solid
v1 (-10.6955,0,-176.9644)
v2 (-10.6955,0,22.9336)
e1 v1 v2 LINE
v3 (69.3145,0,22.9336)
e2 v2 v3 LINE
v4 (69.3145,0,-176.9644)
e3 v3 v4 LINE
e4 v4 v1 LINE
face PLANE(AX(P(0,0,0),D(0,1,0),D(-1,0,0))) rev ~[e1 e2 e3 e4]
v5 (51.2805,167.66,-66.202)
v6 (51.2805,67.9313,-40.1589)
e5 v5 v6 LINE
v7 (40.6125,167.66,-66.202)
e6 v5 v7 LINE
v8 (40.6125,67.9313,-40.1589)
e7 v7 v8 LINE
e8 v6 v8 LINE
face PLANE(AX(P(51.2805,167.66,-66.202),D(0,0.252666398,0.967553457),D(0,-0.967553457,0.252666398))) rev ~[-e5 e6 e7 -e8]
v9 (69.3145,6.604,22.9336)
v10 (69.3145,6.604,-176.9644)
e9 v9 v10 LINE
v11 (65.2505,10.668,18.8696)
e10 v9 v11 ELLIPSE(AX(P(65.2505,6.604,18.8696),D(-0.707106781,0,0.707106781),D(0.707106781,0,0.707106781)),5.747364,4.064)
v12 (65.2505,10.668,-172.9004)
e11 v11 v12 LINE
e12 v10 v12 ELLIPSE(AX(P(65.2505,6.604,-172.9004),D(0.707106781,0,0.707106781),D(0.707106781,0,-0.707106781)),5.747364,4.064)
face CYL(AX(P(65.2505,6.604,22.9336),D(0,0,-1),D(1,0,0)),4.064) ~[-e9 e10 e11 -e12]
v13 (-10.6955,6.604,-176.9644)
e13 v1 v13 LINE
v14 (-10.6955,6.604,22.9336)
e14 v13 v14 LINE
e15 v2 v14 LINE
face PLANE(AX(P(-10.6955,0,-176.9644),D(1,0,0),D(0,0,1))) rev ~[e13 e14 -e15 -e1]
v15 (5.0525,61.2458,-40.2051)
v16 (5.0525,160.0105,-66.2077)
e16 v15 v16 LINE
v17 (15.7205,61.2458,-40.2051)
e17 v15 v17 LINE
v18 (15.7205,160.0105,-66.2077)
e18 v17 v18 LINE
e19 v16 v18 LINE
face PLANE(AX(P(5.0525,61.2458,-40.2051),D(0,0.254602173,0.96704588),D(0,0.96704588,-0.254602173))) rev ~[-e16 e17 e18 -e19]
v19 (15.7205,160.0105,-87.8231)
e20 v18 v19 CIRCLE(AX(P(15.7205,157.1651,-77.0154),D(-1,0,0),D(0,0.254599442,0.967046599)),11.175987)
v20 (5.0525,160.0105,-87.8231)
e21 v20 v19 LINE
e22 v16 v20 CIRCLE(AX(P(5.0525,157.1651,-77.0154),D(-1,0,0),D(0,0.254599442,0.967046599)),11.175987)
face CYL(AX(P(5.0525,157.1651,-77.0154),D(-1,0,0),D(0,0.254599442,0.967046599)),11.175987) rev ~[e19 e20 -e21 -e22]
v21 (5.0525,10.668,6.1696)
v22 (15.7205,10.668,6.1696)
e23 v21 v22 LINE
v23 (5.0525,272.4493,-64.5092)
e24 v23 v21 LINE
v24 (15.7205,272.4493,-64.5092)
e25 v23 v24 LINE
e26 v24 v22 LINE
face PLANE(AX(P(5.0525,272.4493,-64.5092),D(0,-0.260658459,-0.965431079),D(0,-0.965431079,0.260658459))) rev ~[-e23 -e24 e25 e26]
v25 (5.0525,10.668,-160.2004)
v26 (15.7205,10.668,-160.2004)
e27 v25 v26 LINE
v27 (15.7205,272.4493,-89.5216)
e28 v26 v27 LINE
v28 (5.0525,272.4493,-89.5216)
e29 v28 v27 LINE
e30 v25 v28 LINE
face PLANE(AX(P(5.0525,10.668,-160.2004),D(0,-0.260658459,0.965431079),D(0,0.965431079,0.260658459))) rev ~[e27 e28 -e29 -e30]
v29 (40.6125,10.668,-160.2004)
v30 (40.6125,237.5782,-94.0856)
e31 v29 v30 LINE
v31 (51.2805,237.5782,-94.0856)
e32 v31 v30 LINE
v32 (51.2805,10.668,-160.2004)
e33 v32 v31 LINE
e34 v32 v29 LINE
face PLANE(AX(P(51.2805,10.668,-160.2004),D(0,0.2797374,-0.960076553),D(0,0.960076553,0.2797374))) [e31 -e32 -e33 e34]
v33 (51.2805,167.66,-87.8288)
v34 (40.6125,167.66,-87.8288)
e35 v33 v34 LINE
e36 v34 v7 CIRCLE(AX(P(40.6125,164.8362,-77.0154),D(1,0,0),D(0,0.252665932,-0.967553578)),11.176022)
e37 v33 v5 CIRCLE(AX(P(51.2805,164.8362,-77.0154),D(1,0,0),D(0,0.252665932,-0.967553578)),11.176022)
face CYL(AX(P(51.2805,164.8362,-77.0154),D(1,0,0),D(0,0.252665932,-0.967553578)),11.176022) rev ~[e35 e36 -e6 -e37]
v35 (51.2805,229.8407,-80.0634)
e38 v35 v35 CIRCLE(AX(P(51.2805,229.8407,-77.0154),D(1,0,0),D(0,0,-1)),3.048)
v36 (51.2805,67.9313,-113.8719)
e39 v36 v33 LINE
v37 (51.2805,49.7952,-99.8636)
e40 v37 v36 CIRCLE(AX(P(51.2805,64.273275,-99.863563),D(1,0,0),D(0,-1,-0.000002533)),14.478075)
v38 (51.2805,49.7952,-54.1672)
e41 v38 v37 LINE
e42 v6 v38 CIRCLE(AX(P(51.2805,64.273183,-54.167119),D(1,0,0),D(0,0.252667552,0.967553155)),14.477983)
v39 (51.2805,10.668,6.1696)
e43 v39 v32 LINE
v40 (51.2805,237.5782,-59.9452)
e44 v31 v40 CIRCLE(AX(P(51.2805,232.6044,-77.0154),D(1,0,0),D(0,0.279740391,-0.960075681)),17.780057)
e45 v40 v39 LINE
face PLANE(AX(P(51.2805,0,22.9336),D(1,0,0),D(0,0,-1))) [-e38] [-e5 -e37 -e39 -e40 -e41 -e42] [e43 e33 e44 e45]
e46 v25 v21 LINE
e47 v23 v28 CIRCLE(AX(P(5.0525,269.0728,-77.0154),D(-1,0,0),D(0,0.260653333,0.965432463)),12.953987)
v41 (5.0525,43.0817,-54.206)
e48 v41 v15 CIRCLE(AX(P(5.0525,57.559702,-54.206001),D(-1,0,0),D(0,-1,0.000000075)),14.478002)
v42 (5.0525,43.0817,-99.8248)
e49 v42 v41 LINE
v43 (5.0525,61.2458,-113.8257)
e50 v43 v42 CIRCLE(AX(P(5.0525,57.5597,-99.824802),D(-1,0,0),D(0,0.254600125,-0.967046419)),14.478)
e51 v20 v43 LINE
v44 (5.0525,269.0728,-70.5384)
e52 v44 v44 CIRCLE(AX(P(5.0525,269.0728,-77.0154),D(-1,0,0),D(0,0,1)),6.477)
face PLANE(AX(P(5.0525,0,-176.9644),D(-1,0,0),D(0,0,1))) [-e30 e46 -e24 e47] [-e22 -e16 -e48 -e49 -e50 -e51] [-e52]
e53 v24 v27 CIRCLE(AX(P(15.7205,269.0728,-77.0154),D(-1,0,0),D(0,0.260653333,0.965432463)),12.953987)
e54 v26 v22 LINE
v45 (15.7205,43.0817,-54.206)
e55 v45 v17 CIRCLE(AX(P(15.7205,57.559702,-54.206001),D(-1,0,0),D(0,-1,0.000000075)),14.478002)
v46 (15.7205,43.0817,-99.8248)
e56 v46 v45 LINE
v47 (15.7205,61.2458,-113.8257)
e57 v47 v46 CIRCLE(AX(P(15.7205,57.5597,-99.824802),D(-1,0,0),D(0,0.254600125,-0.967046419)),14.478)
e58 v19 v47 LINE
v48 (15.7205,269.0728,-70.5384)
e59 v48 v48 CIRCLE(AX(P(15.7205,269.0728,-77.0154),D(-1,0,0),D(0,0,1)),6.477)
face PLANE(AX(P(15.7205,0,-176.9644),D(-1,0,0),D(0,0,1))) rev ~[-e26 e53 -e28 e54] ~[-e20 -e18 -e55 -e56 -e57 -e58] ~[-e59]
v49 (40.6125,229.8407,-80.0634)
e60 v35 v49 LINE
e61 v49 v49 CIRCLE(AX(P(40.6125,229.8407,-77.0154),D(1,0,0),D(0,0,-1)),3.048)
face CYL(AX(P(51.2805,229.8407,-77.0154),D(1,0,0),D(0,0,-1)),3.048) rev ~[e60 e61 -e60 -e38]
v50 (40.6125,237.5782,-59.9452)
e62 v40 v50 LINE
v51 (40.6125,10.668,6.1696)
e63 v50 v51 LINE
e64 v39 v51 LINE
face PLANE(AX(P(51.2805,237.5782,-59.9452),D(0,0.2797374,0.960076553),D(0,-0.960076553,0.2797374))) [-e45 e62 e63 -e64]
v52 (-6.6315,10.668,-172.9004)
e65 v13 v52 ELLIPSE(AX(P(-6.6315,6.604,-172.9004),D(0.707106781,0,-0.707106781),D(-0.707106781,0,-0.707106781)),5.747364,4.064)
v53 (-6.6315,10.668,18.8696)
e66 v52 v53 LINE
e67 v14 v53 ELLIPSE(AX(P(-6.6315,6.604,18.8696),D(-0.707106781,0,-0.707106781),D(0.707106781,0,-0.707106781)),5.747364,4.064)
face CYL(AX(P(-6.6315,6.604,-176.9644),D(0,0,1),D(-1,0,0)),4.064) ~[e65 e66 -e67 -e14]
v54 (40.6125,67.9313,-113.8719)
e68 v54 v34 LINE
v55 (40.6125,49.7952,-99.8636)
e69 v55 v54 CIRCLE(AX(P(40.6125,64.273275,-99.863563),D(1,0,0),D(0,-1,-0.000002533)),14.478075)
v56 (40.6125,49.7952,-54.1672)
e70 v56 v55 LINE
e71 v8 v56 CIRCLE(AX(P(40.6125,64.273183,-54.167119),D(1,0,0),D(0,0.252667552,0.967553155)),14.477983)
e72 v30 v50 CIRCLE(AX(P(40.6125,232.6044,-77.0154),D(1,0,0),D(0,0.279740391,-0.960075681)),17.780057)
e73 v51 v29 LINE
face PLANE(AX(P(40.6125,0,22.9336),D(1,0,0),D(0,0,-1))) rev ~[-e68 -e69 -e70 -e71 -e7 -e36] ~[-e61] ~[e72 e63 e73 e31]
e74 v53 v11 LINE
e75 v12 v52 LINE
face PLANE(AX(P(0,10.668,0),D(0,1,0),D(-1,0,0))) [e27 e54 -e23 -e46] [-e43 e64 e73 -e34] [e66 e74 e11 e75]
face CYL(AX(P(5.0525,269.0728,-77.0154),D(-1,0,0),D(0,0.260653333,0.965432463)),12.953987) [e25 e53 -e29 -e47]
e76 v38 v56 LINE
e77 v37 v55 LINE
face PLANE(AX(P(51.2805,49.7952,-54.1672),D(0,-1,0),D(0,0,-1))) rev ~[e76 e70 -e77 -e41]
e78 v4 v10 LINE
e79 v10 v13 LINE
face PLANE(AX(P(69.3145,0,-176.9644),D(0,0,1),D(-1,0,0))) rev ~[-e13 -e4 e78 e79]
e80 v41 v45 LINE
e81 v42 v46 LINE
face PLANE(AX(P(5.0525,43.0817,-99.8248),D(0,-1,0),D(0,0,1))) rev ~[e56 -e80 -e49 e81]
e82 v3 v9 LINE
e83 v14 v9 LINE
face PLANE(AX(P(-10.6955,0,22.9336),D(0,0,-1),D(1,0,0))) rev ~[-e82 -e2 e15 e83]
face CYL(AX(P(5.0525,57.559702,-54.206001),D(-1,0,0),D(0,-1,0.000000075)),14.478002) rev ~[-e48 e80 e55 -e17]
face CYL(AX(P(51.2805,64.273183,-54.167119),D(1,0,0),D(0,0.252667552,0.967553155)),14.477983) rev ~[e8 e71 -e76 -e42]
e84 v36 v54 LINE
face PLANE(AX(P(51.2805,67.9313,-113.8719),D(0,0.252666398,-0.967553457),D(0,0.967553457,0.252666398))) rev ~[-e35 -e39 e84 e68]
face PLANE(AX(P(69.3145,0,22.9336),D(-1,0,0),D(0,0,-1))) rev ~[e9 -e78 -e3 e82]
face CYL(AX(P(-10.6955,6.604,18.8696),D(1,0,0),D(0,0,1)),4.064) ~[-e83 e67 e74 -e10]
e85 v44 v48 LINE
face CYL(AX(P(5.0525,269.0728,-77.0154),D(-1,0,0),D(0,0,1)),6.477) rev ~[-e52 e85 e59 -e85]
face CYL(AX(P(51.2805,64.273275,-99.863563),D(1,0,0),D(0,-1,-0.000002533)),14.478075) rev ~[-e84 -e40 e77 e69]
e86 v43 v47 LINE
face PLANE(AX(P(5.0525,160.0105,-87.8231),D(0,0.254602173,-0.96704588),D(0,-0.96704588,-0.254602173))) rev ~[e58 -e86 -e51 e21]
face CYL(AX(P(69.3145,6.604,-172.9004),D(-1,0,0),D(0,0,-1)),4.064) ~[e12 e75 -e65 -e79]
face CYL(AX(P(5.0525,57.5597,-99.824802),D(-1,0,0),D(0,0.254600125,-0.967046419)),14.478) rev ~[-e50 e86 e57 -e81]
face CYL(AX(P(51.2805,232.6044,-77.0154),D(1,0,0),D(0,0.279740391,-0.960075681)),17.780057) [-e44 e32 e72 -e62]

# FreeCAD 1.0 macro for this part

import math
import FreeCAD as App
import Part
import Sketcher
from FreeCAD import Vector
Q = App.Units.Quantity


def edges_at(feature, points):
    """Names of the edges that pass closest to the given points."""
    edges = feature.Shape.Edges
    near = lambda p: min(range(len(edges)), key=lambda i: edges[i].distToShape(Part.Vertex(*p))[0])
    return sorted({f"Edge{near(p) + 1}" for p in points})


def add_polygon(sketch, points):
    """Adds a closed chain of lines whose ends are joined by coincident constraints."""
    first, n = sketch.GeometryCount, len(points)
    for a, b in zip(points, points[1:] + points[:1]):
        sketch.addGeometry(Part.LineSegment(App.Vector(*a, 0), App.Vector(*b, 0)), False)
    for i in range(n):
        sketch.addConstraint(Sketcher.Constraint("Coincident", first + i, 2, first + (i + 1) % n, 1))

doc = App.newDocument("Part")
params = doc.addObject("Spreadsheet::Sheet", "Params")
for row, (alias, value) in enumerate([
    ("sketch1_width", "3.15 in"),
    ("sketch1_height", "7.87 in"),
    ("pad1_length", "0.42 in"),
    ("fillet_radius", "0.16 in"),
    ("sketch2_radius", "0.7 in"),
    ("sketch2_radius2", "0.57 in"),
    ("sketch2_radius3", "0.44 in"),
    ("sketch2_radius4", "0.57 in"),
    ("sketch2_height", "6.55 in"),
    ("pad2_length", "0.42 in"),
    ("sketch3_diameter", "0.24 in"),
    ("sketch4_radius", "0.51 in"),
    ("sketch4_radius2", "0.57 in"),
    ("sketch4_radius3", "0.44 in"),
    ("sketch4_height", "6.55 in"),
    ("pad3_length", "0.42 in"),
    ("sketch5_diameter", "0.51 in"),
], start=1):
    params.set(f"A{row}", alias)
    params.set(f"B{row}", "=" + value)
    params.setAlias(f"B{row}", alias)

body = doc.addObject("PartDesign::Body", "Body")

# Sketch on XZ plane
sketch1 = body.newObject("Sketcher::SketchObject", "Sketch")
sketch1.AttachmentSupport = (doc.getObject("XZ_Plane"), [""])
sketch1.MapMode = "FlatFace"
add_polygon(sketch1, [(-11, -177), (-11, 23), (69, 23), (69, -177)])  # lines 0-3
sketch1.addConstraint([
    Sketcher.Constraint("Vertical", 0),
    Sketcher.Constraint("Horizontal", 1),
    Sketcher.Constraint("Vertical", 2),
    Sketcher.Constraint("Horizontal", 3),
    Sketcher.Constraint("DistanceX", 1, 1, 1, 2, Q("3.15 in")),
    Sketcher.Constraint("DistanceY", 0, 1, 0, 2, Q("7.87 in")),
    Sketcher.Constraint("DistanceY", -1, 1, 0, 2, Q("0.9029 in")),
    Sketcher.Constraint("DistanceX", 0, 2, -1, 1, 10.6955),
])
sketch1.setExpression("Constraints[8]", "Params.sketch1_width")
sketch1.setExpression("Constraints[9]", "Params.sketch1_height")
pad1 = body.newObject("PartDesign::Pad", "Pad")
pad1.Profile = sketch1
pad1.setExpression("Length", "Params.pad1_length")
pad1.Reversed = True
doc.recompute()

fillet = body.newObject("PartDesign::Fillet", "Fillet")
fillet.Base = (pad1, edges_at(pad1, [
    (29.309, 10.668, 22.934),
    (69.314, 10.668, -77.015),
    (29.309, 10.668, -176.964),
    (-10.695, 10.668, -77.015),
]))
fillet.setExpression("Radius", "Params.fillet_radius")

# Sketch on YZ plane
sketch2 = body.newObject("Sketcher::SketchObject", "Sketch001")
sketch2.AttachmentSupport = (doc.getObject("YZ_Plane"), [""])
sketch2.MapMode = "FlatFace"
sketch2.AttachmentOffset = App.Placement(Vector(0, 0, 51.2805), App.Rotation())
sketch2.addGeometry([
    Part.ArcOfCircle(Part.Circle(Vector(232.6044, -77.0154, 0), Vector(0, 0, 1), 17.780057), math.radians(-73.755289), math.radians(73.755289)),  # 0
    Part.LineSegment(Vector(237.5782, -59.9452, 0), Vector(10.668, 6.1696, 0)),  # 1
    Part.LineSegment(Vector(10.668, 6.1696, 0), Vector(10.668, -160.2004, 0)),  # 2
    Part.LineSegment(Vector(10.668, -160.2004, 0), Vector(237.5782, -94.0856, 0)),  # 3
    Part.LineSegment(Vector(49.7952, -99.8636, 0), Vector(49.7952, -54.1672, 0)),  # 4
    Part.ArcOfCircle(Part.Circle(Vector(64.2732, -54.1672, 0), Vector(0, 0, 1), 14.478058), math.radians(75.364725), math.radians(180)),  # 5
    Part.LineSegment(Vector(67.9313, -40.1589, 0), Vector(167.66, -66.202, 0)),  # 6
    Part.ArcOfCircle(Part.Circle(Vector(164.8362, -77.0154, 0), Vector(0, 0, 1), 11.176022), math.radians(-75.364675), math.radians(75.364675)),  # 7
    Part.LineSegment(Vector(167.66, -87.8288, 0), Vector(67.9313, -113.8719, 0)),  # 8
    Part.ArcOfCircle(Part.Circle(Vector(64.2732, -99.8636, 0), Vector(0, 0, 1), 14.478), math.radians(180), math.radians(284.635275)),  # 9
], False)
sketch2.addConstraint([
    Sketcher.Constraint("Coincident", 0, 2, 1, 1),
    Sketcher.Constraint("Coincident", 1, 2, 2, 1),
    Sketcher.Constraint("Coincident", 2, 2, 3, 1),
    Sketcher.Constraint("Coincident", 3, 2, 0, 1),
    Sketcher.Constraint("Coincident", 4, 2, 5, 2),
    Sketcher.Constraint("Coincident", 5, 1, 6, 1),
    Sketcher.Constraint("Coincident", 6, 2, 7, 2),
    Sketcher.Constraint("Coincident", 7, 1, 8, 1),
    Sketcher.Constraint("Coincident", 8, 2, 9, 2),
    Sketcher.Constraint("Coincident", 9, 1, 4, 1),
    Sketcher.Constraint("Vertical", 2),
    Sketcher.Constraint("Vertical", 4),
    Sketcher.Constraint("Radius", 0, Q("0.7 in")),
    Sketcher.Constraint("Radius", 5, Q("0.57 in")),
    Sketcher.Constraint("Radius", 7, Q("0.44 in")),
    Sketcher.Constraint("Radius", 9, Q("0.57 in")),
    Sketcher.Constraint("DistanceY", 2, 2, 2, 1, Q("6.55 in")),
    Sketcher.Constraint("DistanceX", -1, 1, 1, 2, Q("0.42 in")),
    Sketcher.Constraint("Distance", 6, Q("4.058 in")),
    Sketcher.Constraint("Distance", 8, Q("4.058 in")),
    Sketcher.Constraint("DistanceY", 7, 3, 1, 2, Q("3.275 in")),
    Sketcher.Constraint("DistanceY", 0, 3, 1, 2, Q("3.275 in")),
    Sketcher.Constraint("DistanceY", 4, 1, 4, 2, 45.6964),
    Sketcher.Constraint("DistanceY", 0, 3, -1, 1, Q("3.0321 in")),
    Sketcher.Constraint("DistanceY", 9, 3, 0, 2, Q("1.5716 in")),
    Sketcher.Constraint("DistanceY", 3, 2, 0, 2, Q("1.3441 in")),
    Sketcher.Constraint("DistanceY", 3, 2, 5, 3, Q("1.5716 in")),
    Sketcher.Constraint("DistanceY", 5, 3, 5, 1, Q("0.5515 in")),
    Sketcher.Constraint("DistanceY", 4, 2, 5, 1, Q("0.5515 in")),
    Sketcher.Constraint("DistanceY", 8, 2, 9, 3, Q("0.5515 in")),
    Sketcher.Constraint("Distance", 1, 236.346),
    Sketcher.Constraint("Distance", 3, 236.346),
    Sketcher.Constraint("DistanceX", -1, 1, 5, 3, 64.2732),
    Sketcher.Constraint("DistanceX", -1, 1, 7, 3, 164.8362),
])
sketch2.setExpression("Constraints[12]", "Params.sketch2_radius")
sketch2.setExpression("Constraints[13]", "Params.sketch2_radius2")
sketch2.setExpression("Constraints[14]", "Params.sketch2_radius3")
sketch2.setExpression("Constraints[15]", "Params.sketch2_radius4")
sketch2.setExpression("Constraints[16]", "Params.sketch2_height")
pad2 = body.newObject("PartDesign::Pad", "Pad001")
pad2.Profile = sketch2
pad2.setExpression("Length", "Params.pad2_length")
pad2.Reversed = True

# Sketch on YZ plane
sketch3 = body.newObject("Sketcher::SketchObject", "Sketch002")
sketch3.AttachmentSupport = (doc.getObject("YZ_Plane"), [""])
sketch3.MapMode = "FlatFace"
sketch3.AttachmentOffset = App.Placement(Vector(0, 0, 51.2805), App.Rotation())
sketch3.addGeometry(Part.Circle(Vector(229.8, -77, 0), Vector(0, 0, 1), 3), False)
sketch3.addConstraint([
    Sketcher.Constraint("Diameter", 0, Q("0.24 in")),
    Sketcher.Constraint("DistanceY", 0, 3, -1, 1, Q("3.0321 in")),
    Sketcher.Constraint("DistanceX", -1, 1, 0, 3, 229.8407),
])
sketch3.setExpression("Constraints[0]", "Params.sketch3_diameter")
pocket1 = body.newObject("PartDesign::Pocket", "Pocket")
pocket1.Profile = sketch3
pocket1.Type = "UpToFirst"

# Sketch on YZ plane
sketch4 = body.newObject("Sketcher::SketchObject", "Sketch003")
sketch4.AttachmentSupport = (doc.getObject("YZ_Plane"), [""])
sketch4.MapMode = "FlatFace"
sketch4.AttachmentOffset = App.Placement(Vector(0, 0, 5.0525), App.Rotation())
sketch4.addGeometry([
    Part.LineSegment(Vector(272, -90, 0), Vector(11, -160, 0)),  # 0
    Part.LineSegment(Vector(11, -160, 0), Vector(11, 6, 0)),  # 1
    Part.LineSegment(Vector(11, 6, 0), Vector(272, -65, 0)),  # 2
    Part.ArcOfCircle(Part.Circle(Vector(269, -77, 0), Vector(0, 0, 1), 13), math.radians(-75), math.radians(75)),  # 3
    Part.LineSegment(Vector(43, -54, 0), Vector(43, -100, 0)),  # 4
    Part.ArcOfCircle(Part.Circle(Vector(58, -100, 0), Vector(0, 0, 1), 14), math.radians(180), math.radians(285)),  # 5
    Part.LineSegment(Vector(61, -114, 0), Vector(160, -88, 0)),  # 6
    Part.ArcOfCircle(Part.Circle(Vector(157, -77, 0), Vector(0, 0, 1), 11), math.radians(-75), math.radians(75)),  # 7
    Part.LineSegment(Vector(160, -66, 0), Vector(61, -40, 0)),  # 8
    Part.ArcOfCircle(Part.Circle(Vector(58, -54, 0), Vector(0, 0, 1), 14), math.radians(75), math.radians(180)),  # 9
], False)
sketch4.addConstraint([
    Sketcher.Constraint("Coincident", 0, 2, 1, 1),
    Sketcher.Constraint("Coincident", 1, 2, 2, 1),
    Sketcher.Constraint("Tangent", 2, 2, 3, 2),
    Sketcher.Constraint("Tangent", 3, 1, 0, 1),
    Sketcher.Constraint("Tangent", 4, 2, 5, 1),
    Sketcher.Constraint("Tangent", 5, 2, 6, 1),
    Sketcher.Constraint("Tangent", 6, 2, 7, 1),
    Sketcher.Constraint("Tangent", 7, 2, 8, 1),
    Sketcher.Constraint("Tangent", 8, 2, 9, 1),
    Sketcher.Constraint("Tangent", 9, 2, 4, 1),
    Sketcher.Constraint("Vertical", 1),
    Sketcher.Constraint("Vertical", 4),
    Sketcher.Constraint("Equal", 5, 9),
    Sketcher.Constraint("Horizontal", 3, 3, 7, 3),
    Sketcher.Constraint("Vertical", 2, 2, 3, 1),
    Sketcher.Constraint("Vertical", 6, 2, 7, 2),
    Sketcher.Constraint("Radius", 3, Q("0.51 in")),
    Sketcher.Constraint("Radius", 5, Q("0.57 in")),
    Sketcher.Constraint("Radius", 7, Q("0.44 in")),
    Sketcher.Constraint("DistanceY", 1, 1, 1, 2, Q("6.55 in")),
    Sketcher.Constraint("DistanceX", -1, 1, 0, 2, Q("0.42 in")),
    Sketcher.Constraint("Angle", 0, Q("-164.8909 deg")),
    Sketcher.Constraint("Angle", 6, Q("14.75 deg")),
    Sketcher.Constraint("DistanceY", 5, 3, 3, 3, Q("0.898 in")),
    Sketcher.Constraint("DistanceY", 3, 3, -1, 1, Q("3.0321 in")),
    Sketcher.Constraint("DistanceX", -1, 1, 7, 3, Q("6.1876 in")),
])
sketch4.setExpression("Constraints[16]", "Params.sketch4_radius")
sketch4.setExpression("Constraints[17]", "Params.sketch4_radius2")
sketch4.setExpression("Constraints[18]", "Params.sketch4_radius3")
sketch4.setExpression("Constraints[19]", "Params.sketch4_height")
pad3 = body.newObject("PartDesign::Pad", "Pad002")
pad3.Profile = sketch4
pad3.setExpression("Length", "Params.pad3_length")

# Sketch on YZ plane
sketch5 = body.newObject("Sketcher::SketchObject", "Sketch004")
sketch5.AttachmentSupport = (doc.getObject("YZ_Plane"), [""])
sketch5.MapMode = "FlatFace"
sketch5.AttachmentOffset = App.Placement(Vector(0, 0, 5.0525), App.Rotation())
sketch5.addGeometry(Part.Circle(Vector(269, -77, 0), Vector(0, 0, 1), 6), False)
sketch5.addConstraint([
    Sketcher.Constraint("Diameter", 0, Q("0.51 in")),
    Sketcher.Constraint("DistanceY", 0, 3, -1, 1, Q("3.0321 in")),
    Sketcher.Constraint("DistanceX", -1, 1, 0, 3, 269.0728),
])
sketch5.setExpression("Constraints[0]", "Params.sketch5_diameter")
pocket2 = body.newObject("PartDesign::Pocket", "Pocket001")
pocket2.Profile = sketch5
pocket2.Type = "UpToFirst"
pocket2.Reversed = True

doc.recompute()
